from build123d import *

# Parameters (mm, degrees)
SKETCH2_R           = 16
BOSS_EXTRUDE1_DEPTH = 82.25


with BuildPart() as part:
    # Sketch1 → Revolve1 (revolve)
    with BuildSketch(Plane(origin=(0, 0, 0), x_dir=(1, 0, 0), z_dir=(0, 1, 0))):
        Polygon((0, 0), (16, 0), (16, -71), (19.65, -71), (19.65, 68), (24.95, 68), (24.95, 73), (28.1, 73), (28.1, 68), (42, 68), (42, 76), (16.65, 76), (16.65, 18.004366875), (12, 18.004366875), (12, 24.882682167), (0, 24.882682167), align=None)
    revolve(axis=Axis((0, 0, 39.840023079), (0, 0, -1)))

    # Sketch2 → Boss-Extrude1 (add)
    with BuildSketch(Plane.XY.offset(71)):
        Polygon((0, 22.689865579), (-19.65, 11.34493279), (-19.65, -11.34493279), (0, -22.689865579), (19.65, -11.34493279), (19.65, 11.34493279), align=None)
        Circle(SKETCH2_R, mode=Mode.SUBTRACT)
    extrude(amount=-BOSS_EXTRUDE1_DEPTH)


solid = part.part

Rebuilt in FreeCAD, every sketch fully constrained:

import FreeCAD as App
import Part
import Sketcher
from FreeCAD import Vector
Q = App.Units.Quantity

doc = App.newDocument("Part")
body = doc.addObject("PartDesign::Body", "Body")

# Sketch on XZ plane
sketch1 = body.newObject("Sketcher::SketchObject", "Sketch")
sketch1.AttachmentSupport = (doc.getObject("XZ_Plane"), [""])
sketch1.MapMode = "FlatFace"
sketch1.addGeometry([
    Part.LineSegment(Vector(0, 0, 0), Vector(16, 0, 0)),  # 0
    Part.LineSegment(Vector(16, 0, 0), Vector(16, 71, 0)),  # 1
    Part.LineSegment(Vector(16, 71, 0), Vector(19.65, 71, 0)),  # 2
    Part.LineSegment(Vector(19.65, 71, 0), Vector(19.65, -68, 0)),  # 3
    Part.LineSegment(Vector(19.65, -68, 0), Vector(24.95, -68, 0)),  # 4
    Part.LineSegment(Vector(24.95, -68, 0), Vector(24.95, -73, 0)),  # 5
    Part.LineSegment(Vector(24.95, -73, 0), Vector(28.1, -73, 0)),  # 6
    Part.LineSegment(Vector(28.1, -73, 0), Vector(28.1, -68, 0)),  # 7
    Part.LineSegment(Vector(28.1, -68, 0), Vector(42, -68, 0)),  # 8
    Part.LineSegment(Vector(42, -68, 0), Vector(42, -76, 0)),  # 9
    Part.LineSegment(Vector(42, -76, 0), Vector(16.65, -76, 0)),  # 10
    Part.LineSegment(Vector(16.65, -76, 0), Vector(16.65, -18.004367, 0)),  # 11
    Part.LineSegment(Vector(16.65, -18.004367, 0), Vector(12, -18.004367, 0)),  # 12
    Part.LineSegment(Vector(12, -18.004367, 0), Vector(12, -24.882682, 0)),  # 13
    Part.LineSegment(Vector(12, -24.882682, 0), Vector(0, -24.882682, 0)),  # 14
    Part.LineSegment(Vector(0, -24.882682, 0), Vector(0, 0, 0)),  # 15
], False)
sketch1.addConstraint([
    Sketcher.Constraint("Coincident", 0, 2, 1, 1),
    Sketcher.Constraint("Coincident", 1, 2, 2, 1),
    Sketcher.Constraint("Coincident", 2, 2, 3, 1),
    Sketcher.Constraint("Coincident", 3, 2, 4, 1),
    Sketcher.Constraint("Coincident", 4, 2, 5, 1),
    Sketcher.Constraint("Coincident", 5, 2, 6, 1),
    Sketcher.Constraint("Coincident", 6, 2, 7, 1),
    Sketcher.Constraint("Coincident", 7, 2, 8, 1),
    Sketcher.Constraint("Coincident", 8, 2, 9, 1),
    Sketcher.Constraint("Coincident", 9, 2, 10, 1),
    Sketcher.Constraint("Coincident", 10, 2, 11, 1),
    Sketcher.Constraint("Coincident", 11, 2, 12, 1),
    Sketcher.Constraint("Coincident", 12, 2, 13, 1),
    Sketcher.Constraint("Coincident", 13, 2, 14, 1),
    Sketcher.Constraint("Coincident", 14, 2, 15, 1),
    Sketcher.Constraint("Coincident", 15, 2, 0, 1),
    Sketcher.Constraint("Horizontal", 0),
    Sketcher.Constraint("Vertical", 1),
    Sketcher.Constraint("Horizontal", 2),
    Sketcher.Constraint("Vertical", 3),
    Sketcher.Constraint("Horizontal", 4),
    Sketcher.Constraint("Vertical", 5),
    Sketcher.Constraint("Horizontal", 6),
    Sketcher.Constraint("Vertical", 7),
    Sketcher.Constraint("Horizontal", 8),
    Sketcher.Constraint("Vertical", 9),
    Sketcher.Constraint("Horizontal", 10),
    Sketcher.Constraint("Vertical", 11),
    Sketcher.Constraint("Horizontal", 12),
    Sketcher.Constraint("Vertical", 13),
    Sketcher.Constraint("Horizontal", 14),
    Sketcher.Constraint("Vertical", 15),
    Sketcher.Constraint("Coincident", 15, 2, -1, 1),
    Sketcher.Constraint("Horizontal", 4, 2, 7, 2),
    Sketcher.Constraint("DistanceX", 0, 1, 0, 2, 16.0),
    Sketcher.Constraint("DistanceX", 14, 2, 14, 1, 12.0),
    Sketcher.Constraint("DistanceY", 1, 1, 1, 2, 71.0),
    Sketcher.Constraint("DistanceY", 3, 2, 3, 1, 139.0),
    Sketcher.Constraint("DistanceY", 5, 2, 5, 1, 5.0),
    Sketcher.Constraint("DistanceY", 9, 2, 9, 1, 8.0),
    Sketcher.Constraint("DistanceX", 4, 1, 4, 2, 5.3),
    Sketcher.Constraint("DistanceX", 8, 1, 8, 2, 13.9),
    Sketcher.Constraint("DistanceX", -1, 1, 8, 2, 42.0),
    Sketcher.Constraint("DistanceX", 10, 2, 3, 2, 3.0),
    Sketcher.Constraint("DistanceX", 2, 1, 2, 2, 3.65),
    Sketcher.Constraint("DistanceY", 11, 1, 11, 2, 57.995633),
    Sketcher.Constraint("DistanceY", 13, 2, 13, 1, 6.878315),
])
revolution = body.newObject("PartDesign::Revolution", "Revolution")
revolution.Profile = sketch1
revolution.ReferenceAxis = (sketch1, ["V_Axis"])
revolution.Angle = 360

# Sketch on XY plane
sketch2 = body.newObject("Sketcher::SketchObject", "Sketch001")
sketch2.AttachmentSupport = (doc.getObject("XY_Plane"), [""])
sketch2.MapMode = "FlatFace"
sketch2.AttachmentOffset = App.Placement(Vector(0, 0, 71), App.Rotation())
sketch2.addGeometry([
    Part.LineSegment(Vector(0, 22.689866, 0), Vector(-19.65, 11.344933, 0)),  # 0
    Part.LineSegment(Vector(-19.65, 11.344933, 0), Vector(-19.65, -11.344933, 0)),  # 1
    Part.LineSegment(Vector(-19.65, -11.344933, 0), Vector(0, -22.689866, 0)),  # 2
    Part.LineSegment(Vector(0, -22.689866, 0), Vector(19.65, -11.344933, 0)),  # 3
    Part.LineSegment(Vector(19.65, -11.344933, 0), Vector(19.65, 11.344933, 0)),  # 4
    Part.LineSegment(Vector(19.65, 11.344933, 0), Vector(0, 22.689866, 0)),  # 5
    Part.Circle(Vector(0, 0, 0), Vector(0, 0, 1), 16),  # 6
], False)
sketch2.addConstraint([
    Sketcher.Constraint("Coincident", 0, 2, 1, 1),
    Sketcher.Constraint("Coincident", 1, 2, 2, 1),
    Sketcher.Constraint("Coincident", 2, 2, 3, 1),
    Sketcher.Constraint("Coincident", 3, 2, 4, 1),
    Sketcher.Constraint("Coincident", 4, 2, 5, 1),
    Sketcher.Constraint("Coincident", 5, 2, 0, 1),
    Sketcher.Constraint("Vertical", 1),
    Sketcher.Constraint("Vertical", 4),
    Sketcher.Constraint("Coincident", 6, 3, -1, 1),
    Sketcher.Constraint("Symmetric", 0, 2, 3, 2, -1, 1),
    Sketcher.Constraint("Symmetric", 2, 2, 5, 2, -1, 1),
    Sketcher.Constraint("PointOnObject", 2, 2, -2),
    Sketcher.Constraint("Parallel", 2, 5),
    Sketcher.Constraint("Horizontal", 1, 2, 3, 2),
    Sketcher.Constraint("Diameter", 6, 32.0),
    Sketcher.Constraint("Angle", 0, Q("-150 deg")),
    Sketcher.Constraint("DistanceX", 1, 2, 3, 2, 39.3),
    Sketcher.Constraint("DistanceY", 2, 2, 0, 2, 34.034798),
])
pad1 = body.newObject("PartDesign::Pad", "Pad")
pad1.Profile = sketch2
pad1.Length = 82.25
pad1.Reversed = True

doc.recompute()
